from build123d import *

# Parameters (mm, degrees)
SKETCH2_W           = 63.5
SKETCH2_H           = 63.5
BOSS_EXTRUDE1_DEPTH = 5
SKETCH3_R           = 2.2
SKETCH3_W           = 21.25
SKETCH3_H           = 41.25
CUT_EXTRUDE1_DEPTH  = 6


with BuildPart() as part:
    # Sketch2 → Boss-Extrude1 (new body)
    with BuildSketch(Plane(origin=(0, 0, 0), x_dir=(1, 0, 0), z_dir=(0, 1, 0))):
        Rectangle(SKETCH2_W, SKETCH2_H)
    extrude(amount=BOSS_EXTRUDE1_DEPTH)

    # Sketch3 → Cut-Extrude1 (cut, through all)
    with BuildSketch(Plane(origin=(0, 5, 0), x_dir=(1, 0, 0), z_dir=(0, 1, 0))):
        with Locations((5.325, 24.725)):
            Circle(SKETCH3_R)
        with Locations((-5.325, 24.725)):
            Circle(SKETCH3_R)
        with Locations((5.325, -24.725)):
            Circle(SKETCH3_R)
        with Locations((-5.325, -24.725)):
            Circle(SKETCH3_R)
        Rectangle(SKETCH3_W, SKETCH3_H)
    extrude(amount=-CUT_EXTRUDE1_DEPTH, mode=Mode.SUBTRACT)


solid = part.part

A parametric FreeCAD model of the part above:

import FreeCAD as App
import Part
import Sketcher

doc = App.newDocument("Part")
params = doc.addObject("Spreadsheet::Sheet", "Params")
for row, (alias, value) in enumerate([
    ("sketch1_width", "63.5 mm"),
    ("pad1_length", "5 mm"),
    ("sketch2_diameter", "4.4 mm"),
    ("sketch2_width", "21.25 mm"),
    ("sketch2_height", "41.25 mm"),
], start=1):
    params.set(f"A{row}", alias)
    params.set(f"B{row}", "=" + value)
    params.setAlias(f"B{row}", alias)

body = doc.addObject("PartDesign::Body", "Body")

# Sketch on XZ plane
sketch1 = body.newObject("Sketcher::SketchObject", "Sketch")
sketch1.AttachmentSupport = (doc.getObject("XZ_Plane"), [""])
sketch1.MapMode = "FlatFace"
sketch1.addGeometry([
    Part.LineSegment(App.Vector(-31.75, -31.75, 0), App.Vector(-31.75, 31.75, 0)),
    Part.LineSegment(App.Vector(-31.75, 31.75, 0), App.Vector(31.75, 31.75, 0)),
    Part.LineSegment(App.Vector(31.75, 31.75, 0), App.Vector(31.75, -31.75, 0)),
    Part.LineSegment(App.Vector(31.75, -31.75, 0), App.Vector(-31.75, -31.75, 0)),
], False)
sketch1.addConstraint([
    Sketcher.Constraint("Coincident", 0, 2, 1, 1),
    Sketcher.Constraint("Coincident", 1, 2, 2, 1),
    Sketcher.Constraint("Coincident", 2, 2, 3, 1),
    Sketcher.Constraint("Coincident", 3, 2, 0, 1),
    Sketcher.Constraint("Vertical", 0),
    Sketcher.Constraint("Horizontal", 1),
    Sketcher.Constraint("Vertical", 2),
    Sketcher.Constraint("Horizontal", 3),
    Sketcher.Constraint("Symmetric", 0, 2, 2, 2, -1, 1),
    Sketcher.Constraint("Equal", 3, 0),
    Sketcher.Constraint("DistanceX", 1, 1, 1, 2, 63.5),
])
sketch1.setExpression("Constraints[10]", "Params.sketch1_width")
pad1 = body.newObject("PartDesign::Pad", "Pad")
pad1.Profile = sketch1
pad1.setExpression("Length", "Params.pad1_length")
pad1.Reversed = True

# Sketch on XZ plane
sketch2 = body.newObject("Sketcher::SketchObject", "Sketch001")
sketch2.AttachmentSupport = (doc.getObject("XZ_Plane"), [""])
sketch2.MapMode = "FlatFace"
sketch2.AttachmentOffset = App.Placement(App.Vector(0, 0, -5), App.Rotation())
sketch2.addGeometry([
    Part.Circle(App.Vector(5.325, -24.725, 0), App.Vector(0, 0, 1), 2.2),  # 0
    Part.Circle(App.Vector(-5.325, -24.725, 0), App.Vector(0, 0, 1), 2.2),  # 1
    Part.Circle(App.Vector(5.325, 24.725, 0), App.Vector(0, 0, 1), 2.2),  # 2
    Part.Circle(App.Vector(-5.325, 24.725, 0), App.Vector(0, 0, 1), 2.2),  # 3
    Part.LineSegment(App.Vector(-10.625, -20.625, 0), App.Vector(-10.625, 20.625, 0)),  # 4
    Part.LineSegment(App.Vector(-10.625, 20.625, 0), App.Vector(10.625, 20.625, 0)),  # 5
    Part.LineSegment(App.Vector(10.625, 20.625, 0), App.Vector(10.625, -20.625, 0)),  # 6
    Part.LineSegment(App.Vector(10.625, -20.625, 0), App.Vector(-10.625, -20.625, 0)),  # 7
], False)
sketch2.addConstraint([
    Sketcher.Constraint("Coincident", 4, 2, 5, 1),
    Sketcher.Constraint("Coincident", 5, 2, 6, 1),
    Sketcher.Constraint("Coincident", 6, 2, 7, 1),
    Sketcher.Constraint("Coincident", 7, 2, 4, 1),
    Sketcher.Constraint("Vertical", 4),
    Sketcher.Constraint("Horizontal", 5),
    Sketcher.Constraint("Vertical", 6),
    Sketcher.Constraint("Horizontal", 7),
    Sketcher.Constraint("Equal", 0, 1),
    Sketcher.Constraint("Equal", 1, 2),
    Sketcher.Constraint("Equal", 2, 3),
    Sketcher.Constraint("Symmetric", 1, 3, 2, 3, -1, 1),
    Sketcher.Constraint("Symmetric", 0, 3, 3, 3, -1, 1),
    Sketcher.Constraint("Symmetric", 4, 2, 6, 2, -1, 1),
    Sketcher.Constraint("Symmetric", 0, 3, 1, 3, -2),
    Sketcher.Constraint("Diameter", 0, 4.4),
    Sketcher.Constraint("DistanceX", 5, 1, 5, 2, 21.25),
    Sketcher.Constraint("DistanceY", 4, 1, 4, 2, 41.25),
    Sketcher.Constraint("DistanceX", 4, 2, 3, 3, 5.3),
    Sketcher.Constraint("DistanceY", 4, 2, 3, 3, 4.1),
])
sketch2.setExpression("Constraints[15]", "Params.sketch2_diameter")
sketch2.setExpression("Constraints[16]", "Params.sketch2_width")
sketch2.setExpression("Constraints[17]", "Params.sketch2_height")
pocket1 = body.newObject("PartDesign::Pocket", "Pocket")
pocket1.Profile = sketch2
pocket1.Type = "ThroughAll"
pocket1.Reversed = True

doc.recompute()
